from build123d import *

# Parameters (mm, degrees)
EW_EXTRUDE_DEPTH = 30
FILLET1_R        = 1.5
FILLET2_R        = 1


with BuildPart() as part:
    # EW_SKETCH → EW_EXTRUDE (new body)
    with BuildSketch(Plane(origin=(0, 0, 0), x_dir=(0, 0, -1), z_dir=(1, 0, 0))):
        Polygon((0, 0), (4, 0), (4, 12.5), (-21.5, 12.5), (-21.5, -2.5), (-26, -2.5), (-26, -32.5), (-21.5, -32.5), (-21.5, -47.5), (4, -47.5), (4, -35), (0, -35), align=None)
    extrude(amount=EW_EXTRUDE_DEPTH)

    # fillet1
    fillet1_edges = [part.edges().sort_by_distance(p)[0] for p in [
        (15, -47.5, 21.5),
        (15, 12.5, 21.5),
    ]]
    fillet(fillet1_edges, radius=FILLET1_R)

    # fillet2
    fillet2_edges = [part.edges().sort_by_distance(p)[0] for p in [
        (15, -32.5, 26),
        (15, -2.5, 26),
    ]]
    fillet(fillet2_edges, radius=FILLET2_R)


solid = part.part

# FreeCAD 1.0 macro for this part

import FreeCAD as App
import Part
import Sketcher
from FreeCAD import Vector
Q = App.Units.Quantity


def edges_at(feature, points):
    """Names of the edges that pass closest to the given points."""
    edges = feature.Shape.Edges
    near = lambda p: min(range(len(edges)), key=lambda i: edges[i].distToShape(Part.Vertex(*p))[0])
    return sorted({f"Edge{near(p) + 1}" for p in points})


def add_polygon(sketch, points):
    """Adds a closed chain of lines whose ends are joined by coincident constraints."""
    first, n = sketch.GeometryCount, len(points)
    for a, b in zip(points, points[1:] + points[:1]):
        sketch.addGeometry(Part.LineSegment(App.Vector(*a, 0), App.Vector(*b, 0)), False)
    for i in range(n):
        sketch.addConstraint(Sketcher.Constraint("Coincident", first + i, 2, first + (i + 1) % n, 1))

doc = App.newDocument("Part")
body = doc.addObject("PartDesign::Body", "Body")

sketch1 = body.newObject("Sketcher::SketchObject", "Sketch")
sketch1.AttachmentSupport = (doc.getObject("YZ_Plane"), [""])
sketch1.MapMode = "FlatFace"
add_polygon(sketch1, [(0, 0), (0, -4), (12.5, -4), (12.5, 21.5), (-2.5, 21.5), (-2.5, 26), (-32.5, 26), (-32.5, 21.5), (-47.5, 21.5), (-47.5, -4), (-35, -4), (-35, 0)])
sketch1.addConstraint([
    Sketcher.Constraint("Vertical", 0),
    Sketcher.Constraint("Horizontal", 1),
    Sketcher.Constraint("Vertical", 2),
    Sketcher.Constraint("Horizontal", 3),
    Sketcher.Constraint("Vertical", 4),
    Sketcher.Constraint("Horizontal", 5),
    Sketcher.Constraint("Vertical", 6),
    Sketcher.Constraint("Horizontal", 7),
    Sketcher.Constraint("Vertical", 8),
    Sketcher.Constraint("Horizontal", 9),
    Sketcher.Constraint("Vertical", 10),
    Sketcher.Constraint("Horizontal", 11),
    Sketcher.Constraint("Coincident", 11, 2, -1, 1),
    Sketcher.Constraint("Horizontal", 3, 2, 6, 2),
    Sketcher.Constraint("Horizontal", 1, 2, 8, 2),
    Sketcher.Constraint("Equal", 3, 7),
    Sketcher.Constraint("Equal", 1, 9),
    Sketcher.Constraint("DistanceX", 3, 2, 3, 1, Q("15 mm")),
    Sketcher.Constraint("DistanceX", 5, 2, 5, 1, Q("30 mm")),
    Sketcher.Constraint("DistanceX", 11, 1, 11, 2, Q("35 mm")),
    Sketcher.Constraint("DistanceY", 0, 2, 0, 1, Q("4 mm")),
    Sketcher.Constraint("DistanceY", 2, 1, 2, 2, Q("25.5 mm")),
    Sketcher.Constraint("DistanceY", 4, 1, 4, 2, Q("4.5 mm")),
])
pad1 = body.newObject("PartDesign::Pad", "Pad")
pad1.Profile = sketch1
pad1.Length = 30
doc.recompute()

fillet = body.newObject("PartDesign::Fillet", "Fillet")
fillet.Base = (pad1, edges_at(pad1, [(15, -47.5, 21.5), (15, 12.5, 21.5)]))
fillet.Radius = 1.5
doc.recompute()

fillet2 = body.newObject("PartDesign::Fillet", "Fillet001")
fillet2.Base = (fillet, edges_at(fillet, [(15, -32.5, 26), (15, -2.5, 26)]))
fillet2.Radius = 1

doc.recompute()
